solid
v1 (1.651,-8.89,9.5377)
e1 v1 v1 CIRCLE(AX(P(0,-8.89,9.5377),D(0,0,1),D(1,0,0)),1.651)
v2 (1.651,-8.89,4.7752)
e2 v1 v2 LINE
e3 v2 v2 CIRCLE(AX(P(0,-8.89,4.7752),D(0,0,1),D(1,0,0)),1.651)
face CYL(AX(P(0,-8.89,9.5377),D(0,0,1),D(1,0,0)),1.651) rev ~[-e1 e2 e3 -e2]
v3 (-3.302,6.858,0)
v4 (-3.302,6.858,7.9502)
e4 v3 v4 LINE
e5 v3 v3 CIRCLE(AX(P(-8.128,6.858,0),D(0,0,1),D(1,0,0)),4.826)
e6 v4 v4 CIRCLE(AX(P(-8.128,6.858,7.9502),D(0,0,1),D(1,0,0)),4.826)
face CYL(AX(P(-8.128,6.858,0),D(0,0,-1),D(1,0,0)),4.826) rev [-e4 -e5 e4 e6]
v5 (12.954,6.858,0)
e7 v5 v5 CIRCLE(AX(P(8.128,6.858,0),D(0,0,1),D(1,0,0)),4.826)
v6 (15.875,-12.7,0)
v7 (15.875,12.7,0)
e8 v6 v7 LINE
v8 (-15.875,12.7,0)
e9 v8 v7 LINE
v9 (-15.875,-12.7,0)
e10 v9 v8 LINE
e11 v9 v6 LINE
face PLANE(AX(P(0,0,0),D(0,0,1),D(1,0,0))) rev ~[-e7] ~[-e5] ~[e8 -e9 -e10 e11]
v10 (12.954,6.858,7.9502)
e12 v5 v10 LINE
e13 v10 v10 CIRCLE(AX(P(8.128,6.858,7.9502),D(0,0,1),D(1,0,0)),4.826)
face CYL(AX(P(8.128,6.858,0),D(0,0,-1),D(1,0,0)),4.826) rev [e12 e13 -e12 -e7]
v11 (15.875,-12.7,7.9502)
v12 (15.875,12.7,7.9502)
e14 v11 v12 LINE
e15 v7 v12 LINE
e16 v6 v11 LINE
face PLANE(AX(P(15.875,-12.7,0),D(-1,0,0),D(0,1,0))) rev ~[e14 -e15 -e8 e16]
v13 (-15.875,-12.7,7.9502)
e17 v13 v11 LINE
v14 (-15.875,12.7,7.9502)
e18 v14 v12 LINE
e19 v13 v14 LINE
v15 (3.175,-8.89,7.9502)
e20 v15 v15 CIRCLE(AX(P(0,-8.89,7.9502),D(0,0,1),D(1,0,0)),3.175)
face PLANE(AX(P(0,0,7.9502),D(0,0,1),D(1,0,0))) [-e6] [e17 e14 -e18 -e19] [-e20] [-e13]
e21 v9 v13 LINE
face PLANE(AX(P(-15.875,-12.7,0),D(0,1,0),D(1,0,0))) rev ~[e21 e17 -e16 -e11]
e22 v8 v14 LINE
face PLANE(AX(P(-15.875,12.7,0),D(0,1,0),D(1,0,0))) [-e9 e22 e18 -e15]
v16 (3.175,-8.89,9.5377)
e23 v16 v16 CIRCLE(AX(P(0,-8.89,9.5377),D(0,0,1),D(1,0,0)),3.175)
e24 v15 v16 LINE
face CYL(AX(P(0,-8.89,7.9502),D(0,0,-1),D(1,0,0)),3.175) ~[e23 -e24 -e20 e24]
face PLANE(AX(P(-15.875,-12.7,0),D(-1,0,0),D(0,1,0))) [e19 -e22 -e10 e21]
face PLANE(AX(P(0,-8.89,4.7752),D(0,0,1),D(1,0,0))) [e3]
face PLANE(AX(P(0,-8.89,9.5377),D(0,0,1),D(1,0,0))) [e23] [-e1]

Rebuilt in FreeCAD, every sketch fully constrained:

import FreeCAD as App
import Part
import Sketcher

V = App.Vector
Q = App.Units.Quantity

doc = App.newDocument("Part")
body = doc.addObject("PartDesign::Body", "Body")

# Sketch on XY plane
sketch1 = doc.addObject("Sketcher::SketchObject", "Sketch")
body.addObject(sketch1)
sketch1.AttachmentSupport = (doc.XY_Plane, [""])
sketch1.MapMode = "FlatFace"
sketch1.addGeometry([
    Part.LineSegment(V(-15.875, 12.7, 0), V(-15.875, -12.7, 0)),  # 0
    Part.LineSegment(V(-15.875, -12.7, 0), V(15.875, -12.7, 0)),  # 1
    Part.LineSegment(V(15.875, -12.7, 0), V(15.875, 12.7, 0)),  # 2
    Part.LineSegment(V(15.875, 12.7, 0), V(-15.875, 12.7, 0)),  # 3
    Part.Circle(V(-8.128, 6.858, 0), V(0, 0, 1), 4.826),  # 4
    Part.Circle(V(8.128, 6.858, 0), V(0, 0, 1), 4.826),  # 5
], False)
sketch1.addConstraint([
    Sketcher.Constraint("Coincident", 0, 2, 1, 1),
    Sketcher.Constraint("Coincident", 1, 2, 2, 1),
    Sketcher.Constraint("Coincident", 2, 2, 3, 1),
    Sketcher.Constraint("Coincident", 3, 2, 0, 1),
    Sketcher.Constraint("Vertical", 0),
    Sketcher.Constraint("Horizontal", 1),
    Sketcher.Constraint("Vertical", 2),
    Sketcher.Constraint("Horizontal", 3),
    Sketcher.Constraint("Equal", 4, 5),
    Sketcher.Constraint("Symmetric", 0, 2, 2, 2, -1, 1),
    Sketcher.Constraint("Symmetric", 4, 3, 5, 3, -2),
    Sketcher.Constraint("Diameter", 4, Q("0.38 in")),
    Sketcher.Constraint("DistanceY", 0, 2, 0, 1, Q("1 in")),
    Sketcher.Constraint("DistanceX", 1, 1, 1, 2, Q("1.25 in")),
    Sketcher.Constraint("DistanceX", 4, 3, -1, 1, Q("0.32 in")),
    Sketcher.Constraint("DistanceY", -1, 1, 4, 3, Q("0.27 in")),
])
pad1 = doc.addObject("PartDesign::Pad", "Pad")
body.addObject(pad1)
pad1.Profile = sketch1
pad1.Length = Q("0.313 in")

# Sketch on XY plane
sketch2 = doc.addObject("Sketcher::SketchObject", "Sketch001")
body.addObject(sketch2)
sketch2.AttachmentSupport = (doc.XY_Plane, [""])
sketch2.MapMode = "FlatFace"
sketch2.AttachmentOffset = App.Placement(V(0, 0, 0.313 * 25.4), App.Rotation())
sketch2.addGeometry(Part.Circle(V(0, -8.89, 0), V(0, 0, 1), 3.175), False)
sketch2.addConstraint([
    Sketcher.Constraint("PointOnObject", 0, 3, -2),
    Sketcher.Constraint("Diameter", 0, Q("0.25 in")),
    Sketcher.Constraint("DistanceY", 0, 3, -1, 1, Q("0.35 in")),
])
pad2 = doc.addObject("PartDesign::Pad", "Pad001")
body.addObject(pad2)
pad2.Profile = sketch2
pad2.Length = Q("0.0625 in")

# Sketch on XY plane
sketch3 = doc.addObject("Sketcher::SketchObject", "Sketch002")
body.addObject(sketch3)
sketch3.AttachmentSupport = (doc.XY_Plane, [""])
sketch3.MapMode = "FlatFace"
sketch3.AttachmentOffset = App.Placement(V(0, 0, 0.3755 * 25.4), App.Rotation())
sketch3.addGeometry(Part.Circle(V(0, -8.89, 0), V(0, 0, 1), 1.651), False)
sketch3.addConstraint([
    Sketcher.Constraint("PointOnObject", 0, 3, -2),
    Sketcher.Constraint("Diameter", 0, Q("0.13 in")),
    Sketcher.Constraint("DistanceY", 0, 3, -1, 1, Q("0.35 in")),
])
pocket1 = doc.addObject("PartDesign::Pocket", "Pocket")
body.addObject(pocket1)
pocket1.Profile = sketch3
pocket1.Length = Q("0.1875 in")

doc.recompute()
